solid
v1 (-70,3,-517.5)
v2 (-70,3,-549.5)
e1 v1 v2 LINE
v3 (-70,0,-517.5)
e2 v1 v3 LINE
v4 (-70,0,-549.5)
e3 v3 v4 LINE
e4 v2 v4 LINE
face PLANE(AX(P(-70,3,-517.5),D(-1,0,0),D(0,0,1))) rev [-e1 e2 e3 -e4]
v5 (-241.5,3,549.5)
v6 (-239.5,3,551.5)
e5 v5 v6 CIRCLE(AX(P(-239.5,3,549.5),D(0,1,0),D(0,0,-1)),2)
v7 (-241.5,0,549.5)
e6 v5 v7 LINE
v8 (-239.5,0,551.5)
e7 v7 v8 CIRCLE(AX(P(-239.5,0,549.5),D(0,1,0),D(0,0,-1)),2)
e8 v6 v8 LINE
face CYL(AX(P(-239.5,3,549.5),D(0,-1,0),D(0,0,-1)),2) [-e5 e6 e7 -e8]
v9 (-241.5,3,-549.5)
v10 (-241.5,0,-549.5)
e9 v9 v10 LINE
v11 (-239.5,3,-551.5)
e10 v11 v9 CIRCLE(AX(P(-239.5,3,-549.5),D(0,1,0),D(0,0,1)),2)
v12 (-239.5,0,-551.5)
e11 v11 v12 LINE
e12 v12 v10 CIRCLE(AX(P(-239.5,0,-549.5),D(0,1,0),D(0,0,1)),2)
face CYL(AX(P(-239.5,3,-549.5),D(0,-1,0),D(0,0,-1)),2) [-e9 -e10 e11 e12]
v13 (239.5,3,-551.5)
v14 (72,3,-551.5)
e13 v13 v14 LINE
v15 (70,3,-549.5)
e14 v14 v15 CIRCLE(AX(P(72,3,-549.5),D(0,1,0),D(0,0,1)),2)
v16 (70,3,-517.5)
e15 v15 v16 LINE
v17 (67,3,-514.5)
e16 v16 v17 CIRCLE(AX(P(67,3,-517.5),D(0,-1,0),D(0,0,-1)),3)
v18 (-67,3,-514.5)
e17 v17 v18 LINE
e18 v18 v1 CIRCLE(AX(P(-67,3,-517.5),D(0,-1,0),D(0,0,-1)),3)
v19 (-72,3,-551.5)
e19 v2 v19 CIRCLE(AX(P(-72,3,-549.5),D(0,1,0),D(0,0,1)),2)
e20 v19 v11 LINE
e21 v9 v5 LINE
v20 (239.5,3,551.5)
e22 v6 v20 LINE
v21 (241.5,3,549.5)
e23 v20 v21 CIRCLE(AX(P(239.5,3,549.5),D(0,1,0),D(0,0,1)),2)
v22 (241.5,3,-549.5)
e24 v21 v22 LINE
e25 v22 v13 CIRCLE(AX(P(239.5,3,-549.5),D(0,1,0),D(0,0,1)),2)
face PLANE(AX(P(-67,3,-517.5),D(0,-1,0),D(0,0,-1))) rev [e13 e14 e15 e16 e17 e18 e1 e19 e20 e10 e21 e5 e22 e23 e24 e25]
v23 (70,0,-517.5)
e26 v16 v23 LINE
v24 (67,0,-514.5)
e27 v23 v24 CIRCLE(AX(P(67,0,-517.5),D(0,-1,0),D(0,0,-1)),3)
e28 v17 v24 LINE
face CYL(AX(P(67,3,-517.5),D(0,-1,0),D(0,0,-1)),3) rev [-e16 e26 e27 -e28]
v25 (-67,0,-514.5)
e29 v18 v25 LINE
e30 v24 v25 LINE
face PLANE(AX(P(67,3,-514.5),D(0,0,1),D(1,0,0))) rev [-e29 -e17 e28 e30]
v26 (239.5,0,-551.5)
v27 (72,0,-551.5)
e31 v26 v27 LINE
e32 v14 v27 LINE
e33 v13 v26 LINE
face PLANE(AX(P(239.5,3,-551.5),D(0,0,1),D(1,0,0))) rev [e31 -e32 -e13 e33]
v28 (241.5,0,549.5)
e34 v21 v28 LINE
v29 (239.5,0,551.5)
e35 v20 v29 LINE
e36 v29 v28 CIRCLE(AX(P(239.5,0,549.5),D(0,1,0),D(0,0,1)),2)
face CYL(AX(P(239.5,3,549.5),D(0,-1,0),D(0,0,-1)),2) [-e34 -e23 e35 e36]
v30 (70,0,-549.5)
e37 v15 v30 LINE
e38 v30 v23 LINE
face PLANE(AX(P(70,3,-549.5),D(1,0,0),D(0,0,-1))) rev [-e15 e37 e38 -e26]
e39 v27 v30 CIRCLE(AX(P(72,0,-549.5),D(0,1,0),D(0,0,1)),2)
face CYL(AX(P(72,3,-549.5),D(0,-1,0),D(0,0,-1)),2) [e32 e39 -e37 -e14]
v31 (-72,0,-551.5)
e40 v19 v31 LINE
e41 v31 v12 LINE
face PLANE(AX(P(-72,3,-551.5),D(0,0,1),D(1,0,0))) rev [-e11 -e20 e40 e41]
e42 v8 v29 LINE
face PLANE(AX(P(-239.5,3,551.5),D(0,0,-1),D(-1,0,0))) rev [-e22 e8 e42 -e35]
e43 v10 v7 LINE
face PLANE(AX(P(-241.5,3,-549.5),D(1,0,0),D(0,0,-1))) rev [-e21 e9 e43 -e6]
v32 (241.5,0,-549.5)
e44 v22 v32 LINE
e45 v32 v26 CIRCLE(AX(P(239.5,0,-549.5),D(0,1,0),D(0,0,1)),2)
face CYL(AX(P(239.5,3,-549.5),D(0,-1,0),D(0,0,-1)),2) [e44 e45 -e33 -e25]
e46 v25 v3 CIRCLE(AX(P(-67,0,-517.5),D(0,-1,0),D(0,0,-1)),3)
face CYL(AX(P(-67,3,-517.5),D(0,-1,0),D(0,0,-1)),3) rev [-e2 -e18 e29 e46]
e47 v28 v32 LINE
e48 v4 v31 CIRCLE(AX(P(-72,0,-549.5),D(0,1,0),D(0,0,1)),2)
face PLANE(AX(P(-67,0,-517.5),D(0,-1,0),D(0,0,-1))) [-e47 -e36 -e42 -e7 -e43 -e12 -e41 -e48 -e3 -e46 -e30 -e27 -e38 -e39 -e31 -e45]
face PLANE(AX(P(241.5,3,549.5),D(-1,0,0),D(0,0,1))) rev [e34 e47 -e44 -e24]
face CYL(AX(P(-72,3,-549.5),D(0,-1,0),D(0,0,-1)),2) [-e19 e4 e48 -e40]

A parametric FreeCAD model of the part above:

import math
import FreeCAD as App
import Part
import Sketcher
from FreeCAD import Vector
Q = App.Units.Quantity

doc = App.newDocument("Part")
params = doc.addObject("Spreadsheet::Sheet", "Params")
for row, (alias, value) in enumerate([
    ("sketch1_radius", "2 mm"),
    ("sketch1_radius2", "3 mm"),
    ("sketch1_width", "479 mm"),
    ("sketch1_width2", "134 mm"),
    ("sketch1_height", "1099 mm"),
    ("pad1_length", "3 mm"),
], start=1):
    params.set(f"A{row}", alias)
    params.set(f"B{row}", "=" + value)
    params.setAlias(f"B{row}", alias)

body = doc.addObject("PartDesign::Body", "Body")

# Sketch on XZ plane
sketch1 = body.newObject("Sketcher::SketchObject", "Sketch")
sketch1.AttachmentSupport = (doc.getObject("XZ_Plane"), [""])
sketch1.MapMode = "FlatFace"
sketch1.addGeometry(Part.LineSegment(Vector(-239.5, 551.5, 0), Vector(239.5, 551.5, 0)), False)
sketch1.addGeometry(Part.ArcOfCircle(Part.Circle(Vector(239.5, 549.5, 0), Vector(0, 0, 1), 2), math.radians(0), math.radians(90)), False)
sketch1.addGeometry(Part.LineSegment(Vector(241.5, 549.5, 0), Vector(241.5, -549.5, 0)), False)
sketch1.addGeometry(Part.ArcOfCircle(Part.Circle(Vector(239.5, -549.5, 0), Vector(0, 0, 1), 2), math.radians(-90), math.radians(0)), False)
sketch1.addGeometry(Part.LineSegment(Vector(239.5, -551.5, 0), Vector(72, -551.5, 0)), False)
sketch1.addGeometry(Part.ArcOfCircle(Part.Circle(Vector(72, -549.5, 0), Vector(0, 0, 1), 2), math.radians(-180), math.radians(-90)), False)
sketch1.addGeometry(Part.LineSegment(Vector(70, -549.5, 0), Vector(70, -517.5, 0)), False)
sketch1.addGeometry(Part.ArcOfCircle(Part.Circle(Vector(67, -517.5, 0), Vector(0, 0, 1), 3), math.radians(0), math.radians(90)), False)
sketch1.addGeometry(Part.LineSegment(Vector(67, -514.5, 0), Vector(-67, -514.5, 0)), False)
sketch1.addGeometry(Part.ArcOfCircle(Part.Circle(Vector(-67, -517.5, 0), Vector(0, 0, 1), 3), math.radians(90), math.radians(180)), False)
sketch1.addGeometry(Part.LineSegment(Vector(-70, -517.5, 0), Vector(-70, -549.5, 0)), False)
sketch1.addGeometry(Part.ArcOfCircle(Part.Circle(Vector(-72, -549.5, 0), Vector(0, 0, 1), 2), math.radians(-90), math.radians(0)), False)
sketch1.addGeometry(Part.LineSegment(Vector(-72, -551.5, 0), Vector(-239.5, -551.5, 0)), False)
sketch1.addGeometry(Part.ArcOfCircle(Part.Circle(Vector(-239.5, -549.5, 0), Vector(0, 0, 1), 2), math.radians(-180), math.radians(-90)), False)
sketch1.addGeometry(Part.LineSegment(Vector(-241.5, -549.5, 0), Vector(-241.5, 549.5, 0)), False)
sketch1.addGeometry(Part.ArcOfCircle(Part.Circle(Vector(-239.5, 549.5, 0), Vector(0, 0, 1), 2), math.radians(90), math.radians(180)), False)
sketch1.addConstraint(Sketcher.Constraint("Tangent", 0, 2, 1, 2))
sketch1.addConstraint(Sketcher.Constraint("Tangent", 1, 1, 2, 1))
sketch1.addConstraint(Sketcher.Constraint("Tangent", 2, 2, 3, 2))
sketch1.addConstraint(Sketcher.Constraint("Tangent", 3, 1, 4, 1))
sketch1.addConstraint(Sketcher.Constraint("Tangent", 4, 2, 5, 2))
sketch1.addConstraint(Sketcher.Constraint("Tangent", 5, 1, 6, 1))
sketch1.addConstraint(Sketcher.Constraint("Tangent", 6, 2, 7, 1))
sketch1.addConstraint(Sketcher.Constraint("Tangent", 7, 2, 8, 1))
sketch1.addConstraint(Sketcher.Constraint("Tangent", 8, 2, 9, 1))
sketch1.addConstraint(Sketcher.Constraint("Tangent", 9, 2, 10, 1))
sketch1.addConstraint(Sketcher.Constraint("Tangent", 10, 2, 11, 2))
sketch1.addConstraint(Sketcher.Constraint("Tangent", 11, 1, 12, 1))
sketch1.addConstraint(Sketcher.Constraint("Tangent", 12, 2, 13, 2))
sketch1.addConstraint(Sketcher.Constraint("Tangent", 13, 1, 14, 1))
sketch1.addConstraint(Sketcher.Constraint("Tangent", 14, 2, 15, 2))
sketch1.addConstraint(Sketcher.Constraint("Tangent", 15, 1, 0, 1))
sketch1.addConstraint(Sketcher.Constraint("Horizontal", 0))
sketch1.addConstraint(Sketcher.Constraint("Vertical", 2))
sketch1.addConstraint(Sketcher.Constraint("Horizontal", 4))
sketch1.addConstraint(Sketcher.Constraint("Vertical", 6))
sketch1.addConstraint(Sketcher.Constraint("Horizontal", 8))
sketch1.addConstraint(Sketcher.Constraint("Vertical", 10))
sketch1.addConstraint(Sketcher.Constraint("Horizontal", 12))
sketch1.addConstraint(Sketcher.Constraint("Vertical", 14))
sketch1.addConstraint(Sketcher.Constraint("Equal", 1, 3))
sketch1.addConstraint(Sketcher.Constraint("Equal", 3, 5))
sketch1.addConstraint(Sketcher.Constraint("Equal", 7, 9))
sketch1.addConstraint(Sketcher.Constraint("Equal", 5, 11))
sketch1.addConstraint(Sketcher.Constraint("Equal", 11, 13))
sketch1.addConstraint(Sketcher.Constraint("Equal", 13, 15))
sketch1.addConstraint(Sketcher.Constraint("Symmetric", 1, 3, 13, 3, -1, 1))
sketch1.addConstraint(Sketcher.Constraint("Symmetric", 5, 3, 11, 3, -2))
sketch1.addConstraint(Sketcher.Constraint("Radius", 1, Q("2 mm")))
sketch1.addConstraint(Sketcher.Constraint("Radius", 7, Q("3 mm")))
sketch1.addConstraint(Sketcher.Constraint("DistanceX", 0, 1, 0, 2, Q("479 mm")))
sketch1.addConstraint(Sketcher.Constraint("DistanceX", 8, 2, 8, 1, Q("134 mm")))
sketch1.addConstraint(Sketcher.Constraint("DistanceY", 2, 2, 2, 1, Q("1099 mm")))
sketch1.addConstraint(Sketcher.Constraint("DistanceY", 6, 1, 6, 2, Q("32 mm")))
sketch1.setExpression("Constraints[32]", "Params.sketch1_radius")
sketch1.setExpression("Constraints[33]", "Params.sketch1_radius2")
sketch1.setExpression("Constraints[34]", "Params.sketch1_width")
sketch1.setExpression("Constraints[35]", "Params.sketch1_width2")
sketch1.setExpression("Constraints[36]", "Params.sketch1_height")
pad1 = body.newObject("PartDesign::Pad", "Pad")
pad1.Profile = sketch1
pad1.setExpression("Length", "Params.pad1_length")
pad1.Reversed = True

doc.recompute()
